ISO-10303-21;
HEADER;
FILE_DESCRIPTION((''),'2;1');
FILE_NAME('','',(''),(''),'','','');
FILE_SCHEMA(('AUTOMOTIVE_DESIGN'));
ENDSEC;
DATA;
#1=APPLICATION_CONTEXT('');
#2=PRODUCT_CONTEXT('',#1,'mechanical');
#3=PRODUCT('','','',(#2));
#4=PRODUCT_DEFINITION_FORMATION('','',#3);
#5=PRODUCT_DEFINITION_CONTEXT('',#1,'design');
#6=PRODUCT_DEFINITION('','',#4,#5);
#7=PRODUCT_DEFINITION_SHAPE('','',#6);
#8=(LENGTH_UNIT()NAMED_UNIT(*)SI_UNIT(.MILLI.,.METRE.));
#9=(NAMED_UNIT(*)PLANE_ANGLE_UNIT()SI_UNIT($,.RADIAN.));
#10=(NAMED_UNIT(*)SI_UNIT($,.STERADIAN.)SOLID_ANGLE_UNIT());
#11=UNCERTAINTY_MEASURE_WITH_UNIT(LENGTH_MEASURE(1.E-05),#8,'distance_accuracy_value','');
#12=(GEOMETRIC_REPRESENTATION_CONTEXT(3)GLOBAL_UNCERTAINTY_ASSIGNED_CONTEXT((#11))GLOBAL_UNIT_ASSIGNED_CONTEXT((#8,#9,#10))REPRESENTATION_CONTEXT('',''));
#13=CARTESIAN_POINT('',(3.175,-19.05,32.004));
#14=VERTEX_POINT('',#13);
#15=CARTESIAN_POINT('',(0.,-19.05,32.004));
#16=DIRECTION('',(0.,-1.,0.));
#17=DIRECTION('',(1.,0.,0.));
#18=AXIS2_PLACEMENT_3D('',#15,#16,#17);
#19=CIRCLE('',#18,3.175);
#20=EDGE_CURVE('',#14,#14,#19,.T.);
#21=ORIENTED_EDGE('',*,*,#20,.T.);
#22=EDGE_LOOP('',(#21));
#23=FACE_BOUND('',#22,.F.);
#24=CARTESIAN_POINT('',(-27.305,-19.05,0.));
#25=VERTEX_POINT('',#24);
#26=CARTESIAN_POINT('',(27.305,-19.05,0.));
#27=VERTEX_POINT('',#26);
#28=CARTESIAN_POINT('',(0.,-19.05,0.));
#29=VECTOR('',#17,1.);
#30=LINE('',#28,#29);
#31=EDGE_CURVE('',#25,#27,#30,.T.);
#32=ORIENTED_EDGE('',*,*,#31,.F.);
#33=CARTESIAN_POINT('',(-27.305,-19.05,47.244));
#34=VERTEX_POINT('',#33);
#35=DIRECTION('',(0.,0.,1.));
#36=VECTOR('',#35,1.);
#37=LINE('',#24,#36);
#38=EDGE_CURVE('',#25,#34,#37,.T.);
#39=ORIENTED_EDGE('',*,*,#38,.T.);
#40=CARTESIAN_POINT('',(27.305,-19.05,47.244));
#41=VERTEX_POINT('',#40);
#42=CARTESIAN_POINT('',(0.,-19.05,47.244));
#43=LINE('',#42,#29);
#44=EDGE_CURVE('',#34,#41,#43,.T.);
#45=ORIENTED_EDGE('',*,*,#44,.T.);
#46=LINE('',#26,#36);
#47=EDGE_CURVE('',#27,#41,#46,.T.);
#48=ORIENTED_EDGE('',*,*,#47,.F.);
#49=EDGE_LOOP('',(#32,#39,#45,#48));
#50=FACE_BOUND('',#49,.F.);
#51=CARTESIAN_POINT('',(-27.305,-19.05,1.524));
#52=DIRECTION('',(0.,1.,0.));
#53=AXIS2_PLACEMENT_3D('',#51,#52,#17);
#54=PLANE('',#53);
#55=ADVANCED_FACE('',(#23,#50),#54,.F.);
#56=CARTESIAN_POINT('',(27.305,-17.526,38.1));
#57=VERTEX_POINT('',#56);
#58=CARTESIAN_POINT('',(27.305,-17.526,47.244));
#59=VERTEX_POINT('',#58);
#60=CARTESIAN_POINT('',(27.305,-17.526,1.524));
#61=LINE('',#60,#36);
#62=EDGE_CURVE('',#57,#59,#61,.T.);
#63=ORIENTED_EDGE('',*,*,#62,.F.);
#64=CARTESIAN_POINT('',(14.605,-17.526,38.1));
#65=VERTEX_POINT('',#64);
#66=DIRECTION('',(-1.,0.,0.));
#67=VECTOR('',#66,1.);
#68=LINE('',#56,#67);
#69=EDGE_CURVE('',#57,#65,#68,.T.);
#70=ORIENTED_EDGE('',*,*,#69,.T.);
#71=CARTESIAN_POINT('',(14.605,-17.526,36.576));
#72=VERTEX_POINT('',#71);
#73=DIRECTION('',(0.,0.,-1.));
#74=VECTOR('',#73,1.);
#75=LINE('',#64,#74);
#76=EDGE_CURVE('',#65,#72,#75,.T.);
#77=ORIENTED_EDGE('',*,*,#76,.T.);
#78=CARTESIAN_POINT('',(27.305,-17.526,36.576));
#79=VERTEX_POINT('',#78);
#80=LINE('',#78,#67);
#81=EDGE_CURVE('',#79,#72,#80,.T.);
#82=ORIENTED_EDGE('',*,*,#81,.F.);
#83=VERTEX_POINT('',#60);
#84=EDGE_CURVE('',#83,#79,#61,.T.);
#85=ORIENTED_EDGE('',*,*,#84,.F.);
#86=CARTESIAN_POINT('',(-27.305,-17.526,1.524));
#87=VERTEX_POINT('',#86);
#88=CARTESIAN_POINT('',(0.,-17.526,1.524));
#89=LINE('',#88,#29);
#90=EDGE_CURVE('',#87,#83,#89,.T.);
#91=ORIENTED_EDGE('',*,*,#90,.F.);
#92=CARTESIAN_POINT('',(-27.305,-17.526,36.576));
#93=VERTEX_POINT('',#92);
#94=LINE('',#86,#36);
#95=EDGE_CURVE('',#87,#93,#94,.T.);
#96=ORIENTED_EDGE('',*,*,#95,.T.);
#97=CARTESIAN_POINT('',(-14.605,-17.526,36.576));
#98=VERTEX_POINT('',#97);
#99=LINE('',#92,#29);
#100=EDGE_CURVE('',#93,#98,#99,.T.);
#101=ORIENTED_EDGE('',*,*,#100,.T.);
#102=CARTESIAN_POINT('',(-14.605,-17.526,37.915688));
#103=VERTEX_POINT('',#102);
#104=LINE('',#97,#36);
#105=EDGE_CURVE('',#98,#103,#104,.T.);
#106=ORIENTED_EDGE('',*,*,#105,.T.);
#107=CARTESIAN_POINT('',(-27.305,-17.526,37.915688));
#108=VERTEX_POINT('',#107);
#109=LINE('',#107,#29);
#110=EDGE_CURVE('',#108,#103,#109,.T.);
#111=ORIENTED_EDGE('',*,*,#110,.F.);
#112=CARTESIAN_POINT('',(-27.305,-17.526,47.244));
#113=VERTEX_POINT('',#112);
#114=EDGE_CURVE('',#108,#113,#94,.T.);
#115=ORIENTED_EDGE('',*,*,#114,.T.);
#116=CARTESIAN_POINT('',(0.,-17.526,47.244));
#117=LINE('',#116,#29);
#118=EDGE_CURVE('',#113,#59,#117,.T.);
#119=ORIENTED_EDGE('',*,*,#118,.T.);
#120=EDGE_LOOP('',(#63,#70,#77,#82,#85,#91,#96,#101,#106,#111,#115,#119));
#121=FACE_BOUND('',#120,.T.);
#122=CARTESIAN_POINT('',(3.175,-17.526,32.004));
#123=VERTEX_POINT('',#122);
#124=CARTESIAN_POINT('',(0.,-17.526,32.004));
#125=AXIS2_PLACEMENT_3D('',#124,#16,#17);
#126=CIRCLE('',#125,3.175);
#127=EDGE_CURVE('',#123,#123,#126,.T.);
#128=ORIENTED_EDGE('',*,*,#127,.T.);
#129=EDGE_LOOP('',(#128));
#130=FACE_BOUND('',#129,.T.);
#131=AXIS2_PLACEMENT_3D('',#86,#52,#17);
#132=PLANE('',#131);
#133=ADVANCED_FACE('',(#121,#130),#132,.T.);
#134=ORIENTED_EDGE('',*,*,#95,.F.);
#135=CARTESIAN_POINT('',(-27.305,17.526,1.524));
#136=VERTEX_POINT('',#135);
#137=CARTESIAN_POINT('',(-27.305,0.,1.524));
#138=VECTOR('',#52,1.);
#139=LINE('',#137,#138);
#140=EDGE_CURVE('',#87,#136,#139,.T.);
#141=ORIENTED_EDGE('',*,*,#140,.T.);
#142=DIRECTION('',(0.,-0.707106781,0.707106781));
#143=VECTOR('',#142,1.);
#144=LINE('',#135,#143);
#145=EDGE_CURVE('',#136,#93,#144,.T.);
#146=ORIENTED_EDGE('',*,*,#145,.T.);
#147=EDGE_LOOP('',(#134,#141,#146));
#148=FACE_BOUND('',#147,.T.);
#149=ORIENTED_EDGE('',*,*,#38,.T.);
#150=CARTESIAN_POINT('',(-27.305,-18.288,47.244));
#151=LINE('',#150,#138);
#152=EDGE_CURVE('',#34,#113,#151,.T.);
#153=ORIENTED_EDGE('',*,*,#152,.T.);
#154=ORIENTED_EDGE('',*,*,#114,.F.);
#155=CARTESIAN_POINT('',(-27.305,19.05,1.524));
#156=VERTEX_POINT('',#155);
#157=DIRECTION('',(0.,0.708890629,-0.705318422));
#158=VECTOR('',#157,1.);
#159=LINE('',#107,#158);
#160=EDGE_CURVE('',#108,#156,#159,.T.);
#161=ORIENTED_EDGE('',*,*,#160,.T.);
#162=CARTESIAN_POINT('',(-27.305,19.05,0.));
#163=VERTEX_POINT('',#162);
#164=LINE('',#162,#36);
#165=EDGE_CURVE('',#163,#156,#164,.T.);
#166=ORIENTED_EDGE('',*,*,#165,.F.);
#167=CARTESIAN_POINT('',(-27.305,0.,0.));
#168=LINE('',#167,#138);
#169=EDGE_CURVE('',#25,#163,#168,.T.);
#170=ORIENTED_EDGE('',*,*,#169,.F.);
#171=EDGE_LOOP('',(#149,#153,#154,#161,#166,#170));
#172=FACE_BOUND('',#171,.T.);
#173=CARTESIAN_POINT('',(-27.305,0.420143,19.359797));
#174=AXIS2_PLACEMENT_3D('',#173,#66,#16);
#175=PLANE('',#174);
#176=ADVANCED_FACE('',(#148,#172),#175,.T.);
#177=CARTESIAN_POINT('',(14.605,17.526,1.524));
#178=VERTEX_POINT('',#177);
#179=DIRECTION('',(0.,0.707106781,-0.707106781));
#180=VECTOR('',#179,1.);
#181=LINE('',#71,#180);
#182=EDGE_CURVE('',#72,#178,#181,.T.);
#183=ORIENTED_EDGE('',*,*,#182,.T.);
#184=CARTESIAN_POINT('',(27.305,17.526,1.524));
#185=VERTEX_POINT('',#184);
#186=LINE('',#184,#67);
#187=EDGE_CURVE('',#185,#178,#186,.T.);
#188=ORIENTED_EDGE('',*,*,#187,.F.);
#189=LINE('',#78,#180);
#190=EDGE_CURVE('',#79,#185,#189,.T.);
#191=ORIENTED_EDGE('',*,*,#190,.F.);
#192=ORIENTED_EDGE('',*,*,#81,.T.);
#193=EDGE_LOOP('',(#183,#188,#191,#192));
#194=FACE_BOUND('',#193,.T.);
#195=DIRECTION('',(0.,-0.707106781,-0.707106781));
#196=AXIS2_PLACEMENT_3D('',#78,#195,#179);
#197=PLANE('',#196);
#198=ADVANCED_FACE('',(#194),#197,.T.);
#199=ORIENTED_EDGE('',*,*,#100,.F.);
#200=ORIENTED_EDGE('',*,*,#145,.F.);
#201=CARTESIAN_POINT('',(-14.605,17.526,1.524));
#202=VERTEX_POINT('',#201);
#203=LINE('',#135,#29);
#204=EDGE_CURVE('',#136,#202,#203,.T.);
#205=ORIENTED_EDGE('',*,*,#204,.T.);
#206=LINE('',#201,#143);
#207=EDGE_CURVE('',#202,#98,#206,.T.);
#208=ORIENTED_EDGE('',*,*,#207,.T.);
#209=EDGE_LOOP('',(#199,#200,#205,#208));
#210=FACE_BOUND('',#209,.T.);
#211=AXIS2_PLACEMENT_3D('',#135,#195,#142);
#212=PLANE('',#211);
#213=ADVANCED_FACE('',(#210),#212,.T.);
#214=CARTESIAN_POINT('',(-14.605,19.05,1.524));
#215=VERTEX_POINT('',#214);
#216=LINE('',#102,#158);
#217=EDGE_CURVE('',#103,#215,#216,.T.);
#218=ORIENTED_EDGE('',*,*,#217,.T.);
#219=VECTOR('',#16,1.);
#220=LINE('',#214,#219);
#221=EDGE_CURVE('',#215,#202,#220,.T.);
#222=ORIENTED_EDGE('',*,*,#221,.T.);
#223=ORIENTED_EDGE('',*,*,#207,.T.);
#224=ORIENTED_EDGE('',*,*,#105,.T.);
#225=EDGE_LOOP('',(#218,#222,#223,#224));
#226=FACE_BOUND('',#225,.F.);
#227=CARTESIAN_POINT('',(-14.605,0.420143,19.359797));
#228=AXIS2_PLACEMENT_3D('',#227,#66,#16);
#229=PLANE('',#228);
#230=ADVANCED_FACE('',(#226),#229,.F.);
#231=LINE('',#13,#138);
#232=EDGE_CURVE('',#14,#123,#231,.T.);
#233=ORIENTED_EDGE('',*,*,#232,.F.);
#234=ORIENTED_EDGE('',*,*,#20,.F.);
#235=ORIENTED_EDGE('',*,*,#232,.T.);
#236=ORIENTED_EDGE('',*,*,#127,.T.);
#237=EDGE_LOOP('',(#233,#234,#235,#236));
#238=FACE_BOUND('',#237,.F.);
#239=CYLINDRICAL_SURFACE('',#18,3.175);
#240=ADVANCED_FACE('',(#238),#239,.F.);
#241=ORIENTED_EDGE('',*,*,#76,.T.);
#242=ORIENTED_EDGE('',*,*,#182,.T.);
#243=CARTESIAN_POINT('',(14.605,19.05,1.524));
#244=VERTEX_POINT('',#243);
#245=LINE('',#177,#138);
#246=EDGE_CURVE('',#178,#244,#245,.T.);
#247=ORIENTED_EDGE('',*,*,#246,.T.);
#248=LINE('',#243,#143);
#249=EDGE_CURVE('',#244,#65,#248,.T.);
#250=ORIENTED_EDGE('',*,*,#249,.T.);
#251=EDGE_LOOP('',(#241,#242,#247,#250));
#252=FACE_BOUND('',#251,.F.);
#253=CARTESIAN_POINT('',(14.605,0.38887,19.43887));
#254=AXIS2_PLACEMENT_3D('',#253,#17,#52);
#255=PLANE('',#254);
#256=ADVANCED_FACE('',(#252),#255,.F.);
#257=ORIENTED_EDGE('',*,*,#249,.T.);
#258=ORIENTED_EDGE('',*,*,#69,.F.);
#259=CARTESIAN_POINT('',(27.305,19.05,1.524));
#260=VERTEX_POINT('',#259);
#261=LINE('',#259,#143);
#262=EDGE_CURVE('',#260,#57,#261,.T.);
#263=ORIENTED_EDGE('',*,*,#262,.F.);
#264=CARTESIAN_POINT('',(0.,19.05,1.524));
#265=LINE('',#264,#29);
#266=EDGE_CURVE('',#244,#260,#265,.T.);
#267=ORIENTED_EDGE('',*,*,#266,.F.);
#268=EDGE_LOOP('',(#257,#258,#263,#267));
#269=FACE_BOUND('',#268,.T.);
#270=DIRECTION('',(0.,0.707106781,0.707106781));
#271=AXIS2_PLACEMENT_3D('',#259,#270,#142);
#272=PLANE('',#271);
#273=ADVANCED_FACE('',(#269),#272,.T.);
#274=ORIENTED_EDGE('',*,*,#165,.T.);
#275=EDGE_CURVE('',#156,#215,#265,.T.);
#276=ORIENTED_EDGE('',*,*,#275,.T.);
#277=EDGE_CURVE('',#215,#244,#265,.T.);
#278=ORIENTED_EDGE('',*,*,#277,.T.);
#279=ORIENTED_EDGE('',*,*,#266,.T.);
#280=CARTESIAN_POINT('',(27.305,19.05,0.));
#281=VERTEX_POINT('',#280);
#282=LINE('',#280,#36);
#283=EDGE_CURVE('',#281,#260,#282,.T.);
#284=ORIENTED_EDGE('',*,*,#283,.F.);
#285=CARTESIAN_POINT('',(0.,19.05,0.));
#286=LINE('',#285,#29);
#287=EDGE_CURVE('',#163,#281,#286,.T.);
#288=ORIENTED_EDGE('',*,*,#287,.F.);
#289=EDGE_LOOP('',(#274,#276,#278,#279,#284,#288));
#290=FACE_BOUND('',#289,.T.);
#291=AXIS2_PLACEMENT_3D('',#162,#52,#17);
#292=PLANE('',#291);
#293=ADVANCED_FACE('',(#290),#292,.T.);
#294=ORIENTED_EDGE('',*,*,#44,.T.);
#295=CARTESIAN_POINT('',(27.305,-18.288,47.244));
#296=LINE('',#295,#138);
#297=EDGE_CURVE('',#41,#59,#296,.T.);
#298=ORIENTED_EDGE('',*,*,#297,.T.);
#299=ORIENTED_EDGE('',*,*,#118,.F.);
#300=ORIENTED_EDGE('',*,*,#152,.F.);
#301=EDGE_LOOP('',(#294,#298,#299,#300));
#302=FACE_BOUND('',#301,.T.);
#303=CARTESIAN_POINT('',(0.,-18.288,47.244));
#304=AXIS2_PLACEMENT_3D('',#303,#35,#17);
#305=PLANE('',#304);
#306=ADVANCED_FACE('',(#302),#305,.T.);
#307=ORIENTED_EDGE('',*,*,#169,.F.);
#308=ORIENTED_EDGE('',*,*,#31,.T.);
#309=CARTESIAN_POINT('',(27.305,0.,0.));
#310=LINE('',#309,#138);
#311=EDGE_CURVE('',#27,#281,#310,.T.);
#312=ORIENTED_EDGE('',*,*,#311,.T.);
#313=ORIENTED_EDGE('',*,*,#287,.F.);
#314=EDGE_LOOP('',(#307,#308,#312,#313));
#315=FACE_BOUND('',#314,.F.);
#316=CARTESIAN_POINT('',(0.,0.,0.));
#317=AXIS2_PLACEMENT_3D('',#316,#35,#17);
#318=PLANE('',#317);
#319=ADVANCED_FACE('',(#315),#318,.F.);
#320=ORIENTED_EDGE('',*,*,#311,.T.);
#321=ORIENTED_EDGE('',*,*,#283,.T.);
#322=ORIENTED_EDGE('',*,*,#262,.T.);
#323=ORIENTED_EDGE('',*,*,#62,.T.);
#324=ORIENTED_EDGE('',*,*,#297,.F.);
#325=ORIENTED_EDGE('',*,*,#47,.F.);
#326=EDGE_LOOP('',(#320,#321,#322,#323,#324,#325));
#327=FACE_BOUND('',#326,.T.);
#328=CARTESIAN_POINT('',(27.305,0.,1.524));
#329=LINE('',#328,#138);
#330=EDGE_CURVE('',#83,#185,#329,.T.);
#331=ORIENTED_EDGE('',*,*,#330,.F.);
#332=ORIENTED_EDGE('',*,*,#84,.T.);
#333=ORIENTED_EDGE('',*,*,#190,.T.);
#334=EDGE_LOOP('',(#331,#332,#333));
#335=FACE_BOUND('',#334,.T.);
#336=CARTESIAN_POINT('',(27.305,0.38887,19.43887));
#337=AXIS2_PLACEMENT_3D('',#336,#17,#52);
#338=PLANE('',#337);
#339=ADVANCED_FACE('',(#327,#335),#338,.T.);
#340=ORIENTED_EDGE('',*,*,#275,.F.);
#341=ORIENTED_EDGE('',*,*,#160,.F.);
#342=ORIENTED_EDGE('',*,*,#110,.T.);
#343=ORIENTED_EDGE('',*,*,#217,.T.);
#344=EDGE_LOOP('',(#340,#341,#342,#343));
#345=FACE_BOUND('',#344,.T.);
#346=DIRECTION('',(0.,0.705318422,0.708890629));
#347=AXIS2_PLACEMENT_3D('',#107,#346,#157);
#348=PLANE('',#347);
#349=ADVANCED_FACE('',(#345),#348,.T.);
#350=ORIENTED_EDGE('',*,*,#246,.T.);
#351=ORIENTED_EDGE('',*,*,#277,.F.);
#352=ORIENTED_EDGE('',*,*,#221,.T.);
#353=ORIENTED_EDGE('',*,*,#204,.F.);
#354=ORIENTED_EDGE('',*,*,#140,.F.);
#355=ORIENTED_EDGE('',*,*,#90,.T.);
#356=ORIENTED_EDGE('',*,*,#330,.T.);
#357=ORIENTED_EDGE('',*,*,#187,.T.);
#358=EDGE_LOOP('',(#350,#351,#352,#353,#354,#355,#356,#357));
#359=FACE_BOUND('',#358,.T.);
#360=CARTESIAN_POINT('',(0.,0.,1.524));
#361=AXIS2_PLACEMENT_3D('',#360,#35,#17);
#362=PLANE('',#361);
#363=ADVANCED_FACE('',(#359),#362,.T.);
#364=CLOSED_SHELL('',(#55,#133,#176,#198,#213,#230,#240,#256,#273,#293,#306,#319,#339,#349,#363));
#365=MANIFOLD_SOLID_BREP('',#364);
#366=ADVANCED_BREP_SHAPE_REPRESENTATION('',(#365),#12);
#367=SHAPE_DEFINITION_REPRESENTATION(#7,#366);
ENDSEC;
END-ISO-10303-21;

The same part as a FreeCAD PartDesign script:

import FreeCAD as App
import Part
import Sketcher
from FreeCAD import Vector
Q = App.Units.Quantity


def add_polygon(sketch, points):
    """Adds a closed chain of lines whose ends are joined by coincident constraints."""
    first, n = sketch.GeometryCount, len(points)
    for a, b in zip(points, points[1:] + points[:1]):
        sketch.addGeometry(Part.LineSegment(App.Vector(*a, 0), App.Vector(*b, 0)), False)
    for i in range(n):
        sketch.addConstraint(Sketcher.Constraint("Coincident", first + i, 2, first + (i + 1) % n, 1))

doc = App.newDocument("Part")
body = doc.addObject("PartDesign::Body", "Body")

sketch1 = doc.addObject("Sketcher::SketchObject", "Sketch")
body.addObject(sketch1)
sketch1.AttachmentSupport = (doc.XY_Plane, [""])
sketch1.MapMode = "FlatFace"
add_polygon(sketch1, [(-27.305, 19.05), (-27.305, -19.05), (27.305, -19.05), (27.305, 19.05)])
sketch1.addConstraint([
    Sketcher.Constraint("Vertical", 0),
    Sketcher.Constraint("Horizontal", 1),
    Sketcher.Constraint("Vertical", 2),
    Sketcher.Constraint("Horizontal", 3),
    Sketcher.Constraint("Symmetric", 0, 2, 2, 2, -1, 1),
    Sketcher.Constraint("DistanceY", 0, 2, 0, 1, Q("1.5 in")),
    Sketcher.Constraint("DistanceX", 1, 1, 1, 2, Q("2.15 in")),
])
pad1 = doc.addObject("PartDesign::Pad", "Pad")
body.addObject(pad1)
pad1.Profile = sketch1
pad1.Length = Q("0.06 in")

sketch2 = doc.addObject("Sketcher::SketchObject", "Sketch001")
body.addObject(sketch2)
sketch2.AttachmentSupport = (doc.XY_Plane, [""])
sketch2.MapMode = "FlatFace"
sketch2.AttachmentOffset = App.Placement(Vector(0, 0, 0.06 * 25.4), App.Rotation())
add_polygon(sketch2, [(-27.305, -17.526), (-27.305, -19.05), (27.305, -19.05), (27.305, -17.526)])
sketch2.addConstraint([
    Sketcher.Constraint("Vertical", 0),
    Sketcher.Constraint("Horizontal", 1),
    Sketcher.Constraint("Vertical", 2),
    Sketcher.Constraint("Horizontal", 3),
    Sketcher.Constraint("DistanceX", 1, 1, 1, 2, Q("2.15 in")),
    Sketcher.Constraint("DistanceY", 0, 2, 0, 1, Q("0.06 in")),
    Sketcher.Constraint("DistanceY", 0, 2, -1, 1, Q("0.75 in")),
    Sketcher.Constraint("DistanceX", 0, 2, -1, 1, Q("1.075 in")),
])
pad2 = doc.addObject("PartDesign::Pad", "Pad001")
body.addObject(pad2)
pad2.Profile = sketch2
pad2.Length = Q("1.8 in")

sketch3 = doc.addObject("Sketcher::SketchObject", "Sketch002")
body.addObject(sketch3)
sketch3.AttachmentSupport = (doc.XZ_Plane, [""])
sketch3.MapMode = "FlatFace"
sketch3.AttachmentOffset = App.Placement(Vector(0, 0, 0.75 * 25.4), App.Rotation())
sketch3.addGeometry(Part.Circle(Vector(0, 32.004, 0), Vector(0, 0, 1), 3.175), False)
sketch3.addConstraint([
    Sketcher.Constraint("PointOnObject", 0, 3, -2),
    Sketcher.Constraint("Diameter", 0, Q("0.25 in")),
    Sketcher.Constraint("DistanceY", -1, 1, 0, 3, Q("1.26 in")),
])
pocket1 = doc.addObject("PartDesign::Pocket", "Pocket")
body.addObject(pocket1)
pocket1.Profile = sketch3
pocket1.Length = Q("1 in")

sketch4 = doc.addObject("Sketcher::SketchObject", "Sketch003")
body.addObject(sketch4)
sketch4.AttachmentSupport = (doc.YZ_Plane, [""])
sketch4.MapMode = "FlatFace"
sketch4.AttachmentOffset = App.Placement(Vector(0, 0, 1.075 * 25.4), App.Rotation())
add_polygon(sketch4, [(17.526, 1.524), (19.05, 1.524), (-17.526, 38.1), (-17.526, 36.576)])
sketch4.addConstraint([
    Sketcher.Constraint("Horizontal", 0),
    Sketcher.Constraint("Vertical", 2),
    Sketcher.Constraint("Parallel", 1, 3),
    Sketcher.Constraint("Equal", 0, 2),
    Sketcher.Constraint("DistanceX", 0, 1, 0, 2, Q("0.06 in")),
    Sketcher.Constraint("DistanceY", -1, 1, 1, 2, Q("1.5 in")),
    Sketcher.Constraint("DistanceX", -1, 1, 0, 2, Q("0.75 in")),
    Sketcher.Constraint("DistanceY", -1, 1, 0, 2, Q("0.06 in")),
])
pad3 = doc.addObject("PartDesign::Pad", "Pad002")
body.addObject(pad3)
pad3.Profile = sketch4
pad3.Length = Q("0.5 in")
pad3.Reversed = True

sketch5 = doc.addObject("Sketcher::SketchObject", "Sketch004")
body.addObject(sketch5)
sketch5.AttachmentSupport = (doc.YZ_Plane, [""])
sketch5.MapMode = "FlatFace"
sketch5.AttachmentOffset = App.Placement(Vector(0, 0, -1.075 * 25.4), App.Rotation())
add_polygon(sketch5, [(-17.526, 37.915688), (19.05, 1.524), (17.526, 1.524), (-17.526, 36.576)])
sketch5.addConstraint([
    Sketcher.Constraint("Horizontal", 1),
    Sketcher.Constraint("Vertical", 3),
    Sketcher.Constraint("Angle", 2, Q("135 deg")),
    Sketcher.Constraint("DistanceX", 1, 2, 1, 1, Q("0.06 in")),
    Sketcher.Constraint("DistanceX", -1, 1, 0, 2, Q("0.75 in")),
    Sketcher.Constraint("DistanceY", -1, 1, 0, 2, Q("0.06 in")),
    Sketcher.Constraint("DistanceX", 2, 2, -1, 1, Q("0.69 in")),
    Sketcher.Constraint("DistanceY", 3, 1, 3, 2, Q("1.339688 mm")),
])
pad4 = doc.addObject("PartDesign::Pad", "Pad003")
body.addObject(pad4)
pad4.Profile = sketch5
pad4.Length = Q("0.5 in")

doc.recompute()
